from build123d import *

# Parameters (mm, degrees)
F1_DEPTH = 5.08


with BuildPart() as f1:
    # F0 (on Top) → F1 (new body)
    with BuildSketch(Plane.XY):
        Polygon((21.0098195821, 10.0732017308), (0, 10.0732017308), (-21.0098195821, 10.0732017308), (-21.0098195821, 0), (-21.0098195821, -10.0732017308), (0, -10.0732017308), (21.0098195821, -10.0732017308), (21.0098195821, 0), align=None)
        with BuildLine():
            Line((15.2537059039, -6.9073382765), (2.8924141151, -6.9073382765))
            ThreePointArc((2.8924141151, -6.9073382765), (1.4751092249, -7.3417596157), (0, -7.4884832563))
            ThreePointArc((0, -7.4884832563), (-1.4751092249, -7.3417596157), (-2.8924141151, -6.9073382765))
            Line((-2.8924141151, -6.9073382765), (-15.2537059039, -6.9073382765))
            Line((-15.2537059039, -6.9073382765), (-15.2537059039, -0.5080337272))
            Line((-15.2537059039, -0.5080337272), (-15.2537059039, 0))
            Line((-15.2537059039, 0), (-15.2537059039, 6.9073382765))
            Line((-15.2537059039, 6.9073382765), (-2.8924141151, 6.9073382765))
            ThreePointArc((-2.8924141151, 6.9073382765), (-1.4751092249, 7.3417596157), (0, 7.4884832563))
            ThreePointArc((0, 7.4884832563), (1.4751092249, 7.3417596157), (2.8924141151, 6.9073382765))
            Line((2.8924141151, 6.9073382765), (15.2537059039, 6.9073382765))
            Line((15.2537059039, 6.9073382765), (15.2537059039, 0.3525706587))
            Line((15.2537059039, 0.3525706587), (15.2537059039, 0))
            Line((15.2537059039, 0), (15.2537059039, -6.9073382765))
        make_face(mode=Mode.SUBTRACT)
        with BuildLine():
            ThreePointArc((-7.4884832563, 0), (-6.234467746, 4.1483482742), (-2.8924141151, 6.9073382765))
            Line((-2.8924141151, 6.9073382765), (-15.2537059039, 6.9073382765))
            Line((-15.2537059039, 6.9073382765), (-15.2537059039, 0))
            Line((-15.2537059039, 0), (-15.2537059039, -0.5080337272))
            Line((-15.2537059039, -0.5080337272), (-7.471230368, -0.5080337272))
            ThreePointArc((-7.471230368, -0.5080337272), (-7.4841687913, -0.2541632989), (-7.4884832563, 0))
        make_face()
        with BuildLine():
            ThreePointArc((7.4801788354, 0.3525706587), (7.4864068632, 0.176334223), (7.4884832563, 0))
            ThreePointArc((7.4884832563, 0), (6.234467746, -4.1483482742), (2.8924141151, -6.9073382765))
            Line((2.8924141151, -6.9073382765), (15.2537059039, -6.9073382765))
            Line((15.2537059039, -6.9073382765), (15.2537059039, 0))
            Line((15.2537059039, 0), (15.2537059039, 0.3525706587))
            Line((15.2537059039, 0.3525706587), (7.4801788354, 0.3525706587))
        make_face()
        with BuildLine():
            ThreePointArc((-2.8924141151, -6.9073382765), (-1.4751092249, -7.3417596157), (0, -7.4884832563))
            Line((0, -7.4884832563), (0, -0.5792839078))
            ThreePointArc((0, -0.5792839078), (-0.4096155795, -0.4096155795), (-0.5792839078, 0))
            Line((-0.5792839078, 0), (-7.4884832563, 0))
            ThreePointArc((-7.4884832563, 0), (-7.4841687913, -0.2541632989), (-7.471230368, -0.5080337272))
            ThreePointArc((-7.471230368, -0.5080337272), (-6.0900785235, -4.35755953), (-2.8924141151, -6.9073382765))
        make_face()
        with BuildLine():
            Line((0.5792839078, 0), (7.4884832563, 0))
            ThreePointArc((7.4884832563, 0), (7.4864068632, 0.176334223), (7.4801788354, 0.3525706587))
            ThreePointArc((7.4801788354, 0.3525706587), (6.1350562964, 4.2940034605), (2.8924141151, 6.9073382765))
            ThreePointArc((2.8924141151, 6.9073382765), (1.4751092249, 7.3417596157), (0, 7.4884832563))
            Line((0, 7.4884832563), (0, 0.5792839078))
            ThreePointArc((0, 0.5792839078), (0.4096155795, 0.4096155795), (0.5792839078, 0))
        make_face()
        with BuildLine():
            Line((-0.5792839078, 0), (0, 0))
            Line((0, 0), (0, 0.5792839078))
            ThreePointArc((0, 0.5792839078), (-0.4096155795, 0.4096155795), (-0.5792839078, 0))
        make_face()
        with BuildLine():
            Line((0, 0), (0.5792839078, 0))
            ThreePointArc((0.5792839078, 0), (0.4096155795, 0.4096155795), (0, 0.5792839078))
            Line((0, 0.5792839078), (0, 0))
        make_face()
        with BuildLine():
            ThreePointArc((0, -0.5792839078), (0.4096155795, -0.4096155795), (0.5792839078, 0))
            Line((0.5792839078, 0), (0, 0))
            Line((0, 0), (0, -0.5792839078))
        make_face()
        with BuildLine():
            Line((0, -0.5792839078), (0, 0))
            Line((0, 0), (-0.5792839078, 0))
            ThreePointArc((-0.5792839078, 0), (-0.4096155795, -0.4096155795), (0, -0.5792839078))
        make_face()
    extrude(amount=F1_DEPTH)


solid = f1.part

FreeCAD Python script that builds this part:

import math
import FreeCAD as App
import Part
import Sketcher
Q = App.Units.Quantity


def add_polygon(sketch, points):
    """Adds a closed chain of lines whose ends are joined by coincident constraints."""
    first, n = sketch.GeometryCount, len(points)
    for a, b in zip(points, points[1:] + points[:1]):
        sketch.addGeometry(Part.LineSegment(App.Vector(*a, 0), App.Vector(*b, 0)), False)
    for i in range(n):
        sketch.addConstraint(Sketcher.Constraint("Coincident", first + i, 2, first + (i + 1) % n, 1))

doc = App.newDocument("Part")
body = doc.addObject("PartDesign::Body", "Body")

# Sketch on XY plane
sketch1 = doc.addObject("Sketcher::SketchObject", "Sketch")
body.addObject(sketch1)
sketch1.AttachmentSupport = (doc.XY_Plane, [""])
sketch1.MapMode = "FlatFace"
add_polygon(sketch1, [(21, 10.1), (-21, 10.1), (-21, -10.1), (21, -10.1)])  # lines 0-3
sketch1.addGeometry(Part.LineSegment(App.Vector(-2.9, -6.9, 0), App.Vector(-15.3, -6.9, 0)), False)  # 4
sketch1.addGeometry(Part.LineSegment(App.Vector(-15.3, -6.9, 0), App.Vector(-15.3, -0.5, 0)), False)  # 5
sketch1.addGeometry(Part.LineSegment(App.Vector(-15.3, -0.5, 0), App.Vector(-7.5, -0.5, 0)), False)  # 6
sketch1.addGeometry(Part.ArcOfCircle(Part.Circle(App.Vector(0, 0, 0), App.Vector(0, 0, 1), 7.5), math.radians(-176), math.radians(-113)), False)  # 7
sketch1.addGeometry(Part.LineSegment(App.Vector(0, -7.5, 0), App.Vector(0, -0.6, 0)), False)  # 8
sketch1.addGeometry(Part.ArcOfCircle(Part.Circle(App.Vector(0, 0, 0), App.Vector(0, 0, 1), 0.6), math.radians(-90), math.radians(0)), False)  # 9
sketch1.addGeometry(Part.LineSegment(App.Vector(0.6, 0, 0), App.Vector(7.5, 0, 0)), False)  # 10
sketch1.addGeometry(Part.ArcOfCircle(Part.Circle(App.Vector(0, 0, 0), App.Vector(0, 0, 1), 7.5), math.radians(-67), math.radians(0)), False)  # 11
sketch1.addGeometry(Part.ArcOfCircle(Part.Circle(App.Vector(0, 0, 0), App.Vector(0, 0, 1), 7.5), math.radians(-90), math.radians(-67)), False)  # 12
sketch1.addGeometry(Part.ArcOfCircle(Part.Circle(App.Vector(0, 0, 0), App.Vector(0, 0, 1), 0.6), math.radians(90), math.radians(180)), False)  # 13
sketch1.addGeometry(Part.LineSegment(App.Vector(-0.6, 0, 0), App.Vector(-7.5, 0, 0)), False)  # 14
sketch1.addGeometry(Part.ArcOfCircle(Part.Circle(App.Vector(0, 0, 0), App.Vector(0, 0, 1), 7.5), math.radians(113), math.radians(180)), False)  # 15
sketch1.addGeometry(Part.ArcOfCircle(Part.Circle(App.Vector(0, 0, 0), App.Vector(0, 0, 1), 7.5), math.radians(90), math.radians(113)), False)  # 16
sketch1.addGeometry(Part.LineSegment(App.Vector(0, 7.5, 0), App.Vector(0, 0.6, 0)), False)  # 17
sketch1.addGeometry(Part.LineSegment(App.Vector(15.3, 6.9, 0), App.Vector(15.3, 0.4, 0)), False)  # 18
sketch1.addGeometry(Part.LineSegment(App.Vector(15.3, 0.4, 0), App.Vector(7.5, 0.4, 0)), False)  # 19
sketch1.addGeometry(Part.ArcOfCircle(Part.Circle(App.Vector(0, 0, 0), App.Vector(0, 0, 1), 7.5), math.radians(3), math.radians(67)), False)  # 20
sketch1.addGeometry(Part.LineSegment(App.Vector(2.9, 6.9, 0), App.Vector(15.3, 6.9, 0)), False)  # 21
sketch1.addConstraint(Sketcher.Constraint("Coincident", 4, 2, 5, 1))
sketch1.addConstraint(Sketcher.Constraint("Coincident", 5, 2, 6, 1))
sketch1.addConstraint(Sketcher.Constraint("Coincident", 6, 2, 7, 1))
sketch1.addConstraint(Sketcher.Constraint("Coincident", 7, 2, 4, 1))
sketch1.addConstraint(Sketcher.Constraint("Coincident", 8, 2, 9, 1))
sketch1.addConstraint(Sketcher.Constraint("Coincident", 9, 2, 10, 1))
sketch1.addConstraint(Sketcher.Constraint("Coincident", 10, 2, 11, 2))
sketch1.addConstraint(Sketcher.Constraint("Tangent", 11, 1, 12, 2))
sketch1.addConstraint(Sketcher.Constraint("Coincident", 12, 1, 8, 1))
sketch1.addConstraint(Sketcher.Constraint("Coincident", 13, 2, 14, 1))
sketch1.addConstraint(Sketcher.Constraint("Coincident", 14, 2, 15, 2))
sketch1.addConstraint(Sketcher.Constraint("Tangent", 15, 1, 16, 2))
sketch1.addConstraint(Sketcher.Constraint("Coincident", 16, 1, 17, 1))
sketch1.addConstraint(Sketcher.Constraint("Coincident", 17, 2, 13, 1))
sketch1.addConstraint(Sketcher.Constraint("Coincident", 18, 2, 19, 1))
sketch1.addConstraint(Sketcher.Constraint("Coincident", 19, 2, 20, 1))
sketch1.addConstraint(Sketcher.Constraint("Coincident", 20, 2, 21, 1))
sketch1.addConstraint(Sketcher.Constraint("Coincident", 21, 2, 18, 1))
sketch1.addConstraint(Sketcher.Constraint("Horizontal", 0))
sketch1.addConstraint(Sketcher.Constraint("Vertical", 1))
sketch1.addConstraint(Sketcher.Constraint("Horizontal", 2))
sketch1.addConstraint(Sketcher.Constraint("Vertical", 3))
sketch1.addConstraint(Sketcher.Constraint("Horizontal", 4))
sketch1.addConstraint(Sketcher.Constraint("Vertical", 5))
sketch1.addConstraint(Sketcher.Constraint("Horizontal", 6))
sketch1.addConstraint(Sketcher.Constraint("Vertical", 8))
sketch1.addConstraint(Sketcher.Constraint("Horizontal", 10))
sketch1.addConstraint(Sketcher.Constraint("Horizontal", 14))
sketch1.addConstraint(Sketcher.Constraint("Vertical", 17))
sketch1.addConstraint(Sketcher.Constraint("Vertical", 18))
sketch1.addConstraint(Sketcher.Constraint("Horizontal", 19))
sketch1.addConstraint(Sketcher.Constraint("Horizontal", 21))
sketch1.addConstraint(Sketcher.Constraint("Coincident", 7, 3, -1, 1))
sketch1.addConstraint(Sketcher.Constraint("Coincident", 9, 3, -1, 1))
sketch1.addConstraint(Sketcher.Constraint("Coincident", 11, 3, -1, 1))
sketch1.addConstraint(Sketcher.Constraint("Coincident", 13, 3, -1, 1))
sketch1.addConstraint(Sketcher.Constraint("Coincident", 15, 3, -1, 1))
sketch1.addConstraint(Sketcher.Constraint("Coincident", 20, 3, -1, 1))
sketch1.addConstraint(Sketcher.Constraint("Equal", 7, 11))
sketch1.addConstraint(Sketcher.Constraint("Equal", 11, 12))
sketch1.addConstraint(Sketcher.Constraint("Equal", 9, 13))
sketch1.addConstraint(Sketcher.Constraint("Equal", 12, 15))
sketch1.addConstraint(Sketcher.Constraint("Equal", 15, 16))
sketch1.addConstraint(Sketcher.Constraint("Equal", 16, 20))
sketch1.addConstraint(Sketcher.Constraint("Symmetric", 0, 2, 2, 2, -1, 1))
sketch1.addConstraint(Sketcher.Constraint("Symmetric", 4, 2, 21, 2, -1, 1))
sketch1.addConstraint(Sketcher.Constraint("PointOnObject", 8, 2, -2))
sketch1.addConstraint(Sketcher.Constraint("PointOnObject", 9, 2, -1))
sketch1.addConstraint(Sketcher.Constraint("PointOnObject", 13, 2, -1))
sketch1.addConstraint(Sketcher.Constraint("PointOnObject", 16, 1, -2))
sketch1.addConstraint(Sketcher.Constraint("Horizontal", 7, 2, 11, 1))
sketch1.addConstraint(Sketcher.Constraint("Horizontal", 15, 1, 20, 2))
sketch1.addConstraint(Sketcher.Constraint("DistanceX", 10, 1, 10, 2, Q("6.909199 mm")))
sketch1.addConstraint(Sketcher.Constraint("Radius", 7, Q("7.488483 mm")))
sketch1.addConstraint(Sketcher.Constraint("DistanceX", 0, 2, 0, 1, Q("42.019639 mm")))
sketch1.addConstraint(Sketcher.Constraint("DistanceX", 4, 2, 4, 1, Q("12.361292 mm")))
sketch1.addConstraint(Sketcher.Constraint("DistanceY", -1, 1, 0, 2, Q("10.073202 mm")))
sketch1.addConstraint(Sketcher.Constraint("DistanceX", 6, 1, 6, 2, Q("7.782476 mm")))
sketch1.addConstraint(Sketcher.Constraint("DistanceX", 19, 2, 19, 1, Q("7.773527 mm")))
sketch1.addConstraint(Sketcher.Constraint("DistanceY", 5, 1, 5, 2, Q("6.399305 mm")))
pad1 = doc.addObject("PartDesign::Pad", "Pad")
body.addObject(pad1)
pad1.Profile = sketch1
pad1.Length = Q("0.2 in")

doc.recompute()
